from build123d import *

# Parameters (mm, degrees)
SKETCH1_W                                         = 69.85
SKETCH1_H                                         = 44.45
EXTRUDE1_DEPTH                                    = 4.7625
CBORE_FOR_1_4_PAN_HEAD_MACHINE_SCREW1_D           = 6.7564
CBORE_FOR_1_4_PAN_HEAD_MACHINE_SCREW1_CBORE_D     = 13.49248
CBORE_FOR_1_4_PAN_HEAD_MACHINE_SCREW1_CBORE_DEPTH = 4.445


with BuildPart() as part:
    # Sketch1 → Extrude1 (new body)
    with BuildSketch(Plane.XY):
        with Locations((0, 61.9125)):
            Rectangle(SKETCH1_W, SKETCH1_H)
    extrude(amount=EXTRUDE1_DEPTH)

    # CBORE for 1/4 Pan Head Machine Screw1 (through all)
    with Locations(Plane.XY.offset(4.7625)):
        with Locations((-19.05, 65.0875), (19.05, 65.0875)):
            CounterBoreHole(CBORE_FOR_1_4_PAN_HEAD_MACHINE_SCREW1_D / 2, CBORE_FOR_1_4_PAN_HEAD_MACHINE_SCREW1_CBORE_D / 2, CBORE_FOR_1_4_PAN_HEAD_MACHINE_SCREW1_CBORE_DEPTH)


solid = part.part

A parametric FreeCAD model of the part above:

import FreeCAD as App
import Part
import Sketcher
from FreeCAD import Vector
Q = App.Units.Quantity


def add_polygon(sketch, points):
    """Adds a closed chain of lines whose ends are joined by coincident constraints."""
    first, n = sketch.GeometryCount, len(points)
    for a, b in zip(points, points[1:] + points[:1]):
        sketch.addGeometry(Part.LineSegment(App.Vector(*a, 0), App.Vector(*b, 0)), False)
    for i in range(n):
        sketch.addConstraint(Sketcher.Constraint("Coincident", first + i, 2, first + (i + 1) % n, 1))

doc = App.newDocument("Part")
params = doc.addObject("Spreadsheet::Sheet", "Params")
for row, (alias, value) in enumerate([
    ("sketch1_width", "2.75 in"),
    ("sketch1_height", "1.75 in"),
    ("pad1_length", "0.1875 in"),
    ("sketch2_diameter", "0.266 in"),
    ("hole_diameter", "0.266 in"),
    ("hole_cbore_diameter", "0.5312 in"),
    ("hole_cbore_depth", "0.175 in"),
], start=1):
    params.set(f"A{row}", alias)
    params.set(f"B{row}", "=" + value)
    params.setAlias(f"B{row}", alias)

body = doc.addObject("PartDesign::Body", "Body")

sketch1 = body.newObject("Sketcher::SketchObject", "Sketch")
sketch1.AttachmentSupport = (doc.getObject("XY_Plane"), [""])
sketch1.MapMode = "FlatFace"
add_polygon(sketch1, [(-35, 84), (-35, 40), (35, 40), (35, 84)])
sketch1.addConstraint([
    Sketcher.Constraint("Vertical", 0),
    Sketcher.Constraint("Horizontal", 1),
    Sketcher.Constraint("Vertical", 2),
    Sketcher.Constraint("Horizontal", 3),
    Sketcher.Constraint("DistanceX", 1, 1, 1, 2, Q("2.75 in")),
    Sketcher.Constraint("DistanceY", 0, 2, 0, 1, Q("1.75 in")),
    Sketcher.Constraint("DistanceX", 0, 2, -1, 1, Q("1.375 in")),
    Sketcher.Constraint("DistanceY", -1, 1, 0, 2, Q("1.5625 in")),
])
sketch1.setExpression("Constraints[8]", "Params.sketch1_width")
sketch1.setExpression("Constraints[9]", "Params.sketch1_height")
pad1 = body.newObject("PartDesign::Pad", "Pad")
pad1.Profile = sketch1
pad1.setExpression("Length", "Params.pad1_length")

sketch2 = body.newObject("Sketcher::SketchObject", "Sketch001")
sketch2.AttachmentSupport = (doc.getObject("XY_Plane"), [""])
sketch2.MapMode = "FlatFace"
sketch2.AttachmentOffset = App.Placement(Vector(0, 0, 0.1875 * 25.4), App.Rotation())
sketch2.addGeometry([
    Part.Circle(Vector(-19.1, 65.1, 0), Vector(0, 0, 1), 3.4),
    Part.Circle(Vector(19.1, 65.1, 0), Vector(0, 0, 1), 3.4),
], False)
sketch2.addConstraint([
    Sketcher.Constraint("Equal", 0, 1),
    Sketcher.Constraint("Symmetric", 0, 3, 1, 3, -2),
    Sketcher.Constraint("Diameter", 0, Q("0.266 in")),
    Sketcher.Constraint("DistanceX", 0, 3, 1, 3, Q("1.5 in")),
    Sketcher.Constraint("DistanceY", -1, 1, 0, 3, Q("2.5625 in")),
])
sketch2.setExpression("Constraints[2]", "Params.sketch2_diameter")
doc.recompute()
hole = body.newObject("PartDesign::Hole", "Hole")
hole.Profile = sketch2
hole.ThreadType = "None"
hole.setExpression("Diameter", "Params.hole_diameter")
hole.DepthType = "ThroughAll"
hole.HoleCutType = "Counterbore"
hole.setExpression("HoleCutDiameter", "Params.hole_cbore_diameter")
hole.setExpression("HoleCutDepth", "Params.hole_cbore_depth")

doc.recompute()
